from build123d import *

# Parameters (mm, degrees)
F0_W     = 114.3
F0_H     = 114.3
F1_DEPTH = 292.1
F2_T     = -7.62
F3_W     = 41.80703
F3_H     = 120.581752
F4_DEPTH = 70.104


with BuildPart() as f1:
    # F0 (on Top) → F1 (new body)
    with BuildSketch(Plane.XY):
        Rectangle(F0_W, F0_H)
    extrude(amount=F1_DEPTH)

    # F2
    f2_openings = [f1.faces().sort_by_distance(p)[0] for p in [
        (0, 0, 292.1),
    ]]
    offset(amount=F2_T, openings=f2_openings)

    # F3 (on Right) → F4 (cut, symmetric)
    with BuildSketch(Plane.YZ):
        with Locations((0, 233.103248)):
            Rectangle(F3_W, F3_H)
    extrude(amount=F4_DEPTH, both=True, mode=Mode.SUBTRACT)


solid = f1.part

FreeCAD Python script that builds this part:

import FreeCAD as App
import Part
import Sketcher
from FreeCAD import Vector
Q = App.Units.Quantity


def faces_at(feature, points):
    """Names of the faces that lie closest to the given points."""
    faces = feature.Shape.Faces
    near = lambda p: min(range(len(faces)), key=lambda i: faces[i].distToShape(Part.Vertex(*p))[0])
    return sorted({f"Face{near(p) + 1}" for p in points})


def add_polygon(sketch, points):
    """Adds a closed chain of lines whose ends are joined by coincident constraints."""
    first, n = sketch.GeometryCount, len(points)
    for a, b in zip(points, points[1:] + points[:1]):
        sketch.addGeometry(Part.LineSegment(App.Vector(*a, 0), App.Vector(*b, 0)), False)
    for i in range(n):
        sketch.addConstraint(Sketcher.Constraint("Coincident", first + i, 2, first + (i + 1) % n, 1))

doc = App.newDocument("Part")
body = doc.addObject("PartDesign::Body", "Body")

# Sketch on XY plane
sketch1 = body.newObject("Sketcher::SketchObject", "Sketch")
sketch1.AttachmentSupport = (doc.getObject("XY_Plane"), [""])
sketch1.MapMode = "FlatFace"
add_polygon(sketch1, [(-57.15, 57.15), (-57.15, -57.15), (57.15, -57.15), (57.15, 57.15)])  # lines 0-3
sketch1.addConstraint(Sketcher.Constraint("Vertical", 0))
sketch1.addConstraint(Sketcher.Constraint("Horizontal", 1))
sketch1.addConstraint(Sketcher.Constraint("Vertical", 2))
sketch1.addConstraint(Sketcher.Constraint("Horizontal", 3))
sketch1.addConstraint(Sketcher.Constraint("Symmetric", 0, 2, 2, 2, -1, 1))
sketch1.addConstraint(Sketcher.Constraint("Equal", 3, 0))
sketch1.addConstraint(Sketcher.Constraint("DistanceX", 1, 1, 1, 2, Q("4.5 in")))
pad1 = body.newObject("PartDesign::Pad", "Pad")
pad1.Profile = sketch1
pad1.Length = Q("11.5 in")
doc.recompute()

thickness = body.newObject("PartDesign::Thickness", "Thickness")
thickness.Base = (pad1, faces_at(pad1, [(0, 0, 292.1)]))
thickness.Value = Q("0.3 in")
thickness.Reversed = True
thickness.Join = "Arc"

# Sketch on YZ plane
sketch2 = body.newObject("Sketcher::SketchObject", "Sketch001")
sketch2.AttachmentSupport = (doc.getObject("YZ_Plane"), [""])
sketch2.MapMode = "FlatFace"
add_polygon(sketch2, [(-20.903515, 293.394124), (-20.903515, 172.812372), (20.903515, 172.812372), (20.903515, 293.394124)])  # lines 0-3
sketch2.addConstraint(Sketcher.Constraint("Vertical", 0))
sketch2.addConstraint(Sketcher.Constraint("Horizontal", 1))
sketch2.addConstraint(Sketcher.Constraint("Vertical", 2))
sketch2.addConstraint(Sketcher.Constraint("Horizontal", 3))
sketch2.addConstraint(Sketcher.Constraint("DistanceX", 1, 1, 1, 2, 41.80703))
sketch2.addConstraint(Sketcher.Constraint("DistanceY", 0, 2, 0, 1, 120.581752))
sketch2.addConstraint(Sketcher.Constraint("DistanceX", 0, 2, -1, 1, 20.903515))
sketch2.addConstraint(Sketcher.Constraint("DistanceY", -1, 1, 0, 2, 172.812372))
pocket1 = body.newObject("PartDesign::Pocket", "Pocket")
pocket1.Profile = sketch2
pocket1.Length = Q("5.52 in")
pocket1.Midplane = True

doc.recompute()
